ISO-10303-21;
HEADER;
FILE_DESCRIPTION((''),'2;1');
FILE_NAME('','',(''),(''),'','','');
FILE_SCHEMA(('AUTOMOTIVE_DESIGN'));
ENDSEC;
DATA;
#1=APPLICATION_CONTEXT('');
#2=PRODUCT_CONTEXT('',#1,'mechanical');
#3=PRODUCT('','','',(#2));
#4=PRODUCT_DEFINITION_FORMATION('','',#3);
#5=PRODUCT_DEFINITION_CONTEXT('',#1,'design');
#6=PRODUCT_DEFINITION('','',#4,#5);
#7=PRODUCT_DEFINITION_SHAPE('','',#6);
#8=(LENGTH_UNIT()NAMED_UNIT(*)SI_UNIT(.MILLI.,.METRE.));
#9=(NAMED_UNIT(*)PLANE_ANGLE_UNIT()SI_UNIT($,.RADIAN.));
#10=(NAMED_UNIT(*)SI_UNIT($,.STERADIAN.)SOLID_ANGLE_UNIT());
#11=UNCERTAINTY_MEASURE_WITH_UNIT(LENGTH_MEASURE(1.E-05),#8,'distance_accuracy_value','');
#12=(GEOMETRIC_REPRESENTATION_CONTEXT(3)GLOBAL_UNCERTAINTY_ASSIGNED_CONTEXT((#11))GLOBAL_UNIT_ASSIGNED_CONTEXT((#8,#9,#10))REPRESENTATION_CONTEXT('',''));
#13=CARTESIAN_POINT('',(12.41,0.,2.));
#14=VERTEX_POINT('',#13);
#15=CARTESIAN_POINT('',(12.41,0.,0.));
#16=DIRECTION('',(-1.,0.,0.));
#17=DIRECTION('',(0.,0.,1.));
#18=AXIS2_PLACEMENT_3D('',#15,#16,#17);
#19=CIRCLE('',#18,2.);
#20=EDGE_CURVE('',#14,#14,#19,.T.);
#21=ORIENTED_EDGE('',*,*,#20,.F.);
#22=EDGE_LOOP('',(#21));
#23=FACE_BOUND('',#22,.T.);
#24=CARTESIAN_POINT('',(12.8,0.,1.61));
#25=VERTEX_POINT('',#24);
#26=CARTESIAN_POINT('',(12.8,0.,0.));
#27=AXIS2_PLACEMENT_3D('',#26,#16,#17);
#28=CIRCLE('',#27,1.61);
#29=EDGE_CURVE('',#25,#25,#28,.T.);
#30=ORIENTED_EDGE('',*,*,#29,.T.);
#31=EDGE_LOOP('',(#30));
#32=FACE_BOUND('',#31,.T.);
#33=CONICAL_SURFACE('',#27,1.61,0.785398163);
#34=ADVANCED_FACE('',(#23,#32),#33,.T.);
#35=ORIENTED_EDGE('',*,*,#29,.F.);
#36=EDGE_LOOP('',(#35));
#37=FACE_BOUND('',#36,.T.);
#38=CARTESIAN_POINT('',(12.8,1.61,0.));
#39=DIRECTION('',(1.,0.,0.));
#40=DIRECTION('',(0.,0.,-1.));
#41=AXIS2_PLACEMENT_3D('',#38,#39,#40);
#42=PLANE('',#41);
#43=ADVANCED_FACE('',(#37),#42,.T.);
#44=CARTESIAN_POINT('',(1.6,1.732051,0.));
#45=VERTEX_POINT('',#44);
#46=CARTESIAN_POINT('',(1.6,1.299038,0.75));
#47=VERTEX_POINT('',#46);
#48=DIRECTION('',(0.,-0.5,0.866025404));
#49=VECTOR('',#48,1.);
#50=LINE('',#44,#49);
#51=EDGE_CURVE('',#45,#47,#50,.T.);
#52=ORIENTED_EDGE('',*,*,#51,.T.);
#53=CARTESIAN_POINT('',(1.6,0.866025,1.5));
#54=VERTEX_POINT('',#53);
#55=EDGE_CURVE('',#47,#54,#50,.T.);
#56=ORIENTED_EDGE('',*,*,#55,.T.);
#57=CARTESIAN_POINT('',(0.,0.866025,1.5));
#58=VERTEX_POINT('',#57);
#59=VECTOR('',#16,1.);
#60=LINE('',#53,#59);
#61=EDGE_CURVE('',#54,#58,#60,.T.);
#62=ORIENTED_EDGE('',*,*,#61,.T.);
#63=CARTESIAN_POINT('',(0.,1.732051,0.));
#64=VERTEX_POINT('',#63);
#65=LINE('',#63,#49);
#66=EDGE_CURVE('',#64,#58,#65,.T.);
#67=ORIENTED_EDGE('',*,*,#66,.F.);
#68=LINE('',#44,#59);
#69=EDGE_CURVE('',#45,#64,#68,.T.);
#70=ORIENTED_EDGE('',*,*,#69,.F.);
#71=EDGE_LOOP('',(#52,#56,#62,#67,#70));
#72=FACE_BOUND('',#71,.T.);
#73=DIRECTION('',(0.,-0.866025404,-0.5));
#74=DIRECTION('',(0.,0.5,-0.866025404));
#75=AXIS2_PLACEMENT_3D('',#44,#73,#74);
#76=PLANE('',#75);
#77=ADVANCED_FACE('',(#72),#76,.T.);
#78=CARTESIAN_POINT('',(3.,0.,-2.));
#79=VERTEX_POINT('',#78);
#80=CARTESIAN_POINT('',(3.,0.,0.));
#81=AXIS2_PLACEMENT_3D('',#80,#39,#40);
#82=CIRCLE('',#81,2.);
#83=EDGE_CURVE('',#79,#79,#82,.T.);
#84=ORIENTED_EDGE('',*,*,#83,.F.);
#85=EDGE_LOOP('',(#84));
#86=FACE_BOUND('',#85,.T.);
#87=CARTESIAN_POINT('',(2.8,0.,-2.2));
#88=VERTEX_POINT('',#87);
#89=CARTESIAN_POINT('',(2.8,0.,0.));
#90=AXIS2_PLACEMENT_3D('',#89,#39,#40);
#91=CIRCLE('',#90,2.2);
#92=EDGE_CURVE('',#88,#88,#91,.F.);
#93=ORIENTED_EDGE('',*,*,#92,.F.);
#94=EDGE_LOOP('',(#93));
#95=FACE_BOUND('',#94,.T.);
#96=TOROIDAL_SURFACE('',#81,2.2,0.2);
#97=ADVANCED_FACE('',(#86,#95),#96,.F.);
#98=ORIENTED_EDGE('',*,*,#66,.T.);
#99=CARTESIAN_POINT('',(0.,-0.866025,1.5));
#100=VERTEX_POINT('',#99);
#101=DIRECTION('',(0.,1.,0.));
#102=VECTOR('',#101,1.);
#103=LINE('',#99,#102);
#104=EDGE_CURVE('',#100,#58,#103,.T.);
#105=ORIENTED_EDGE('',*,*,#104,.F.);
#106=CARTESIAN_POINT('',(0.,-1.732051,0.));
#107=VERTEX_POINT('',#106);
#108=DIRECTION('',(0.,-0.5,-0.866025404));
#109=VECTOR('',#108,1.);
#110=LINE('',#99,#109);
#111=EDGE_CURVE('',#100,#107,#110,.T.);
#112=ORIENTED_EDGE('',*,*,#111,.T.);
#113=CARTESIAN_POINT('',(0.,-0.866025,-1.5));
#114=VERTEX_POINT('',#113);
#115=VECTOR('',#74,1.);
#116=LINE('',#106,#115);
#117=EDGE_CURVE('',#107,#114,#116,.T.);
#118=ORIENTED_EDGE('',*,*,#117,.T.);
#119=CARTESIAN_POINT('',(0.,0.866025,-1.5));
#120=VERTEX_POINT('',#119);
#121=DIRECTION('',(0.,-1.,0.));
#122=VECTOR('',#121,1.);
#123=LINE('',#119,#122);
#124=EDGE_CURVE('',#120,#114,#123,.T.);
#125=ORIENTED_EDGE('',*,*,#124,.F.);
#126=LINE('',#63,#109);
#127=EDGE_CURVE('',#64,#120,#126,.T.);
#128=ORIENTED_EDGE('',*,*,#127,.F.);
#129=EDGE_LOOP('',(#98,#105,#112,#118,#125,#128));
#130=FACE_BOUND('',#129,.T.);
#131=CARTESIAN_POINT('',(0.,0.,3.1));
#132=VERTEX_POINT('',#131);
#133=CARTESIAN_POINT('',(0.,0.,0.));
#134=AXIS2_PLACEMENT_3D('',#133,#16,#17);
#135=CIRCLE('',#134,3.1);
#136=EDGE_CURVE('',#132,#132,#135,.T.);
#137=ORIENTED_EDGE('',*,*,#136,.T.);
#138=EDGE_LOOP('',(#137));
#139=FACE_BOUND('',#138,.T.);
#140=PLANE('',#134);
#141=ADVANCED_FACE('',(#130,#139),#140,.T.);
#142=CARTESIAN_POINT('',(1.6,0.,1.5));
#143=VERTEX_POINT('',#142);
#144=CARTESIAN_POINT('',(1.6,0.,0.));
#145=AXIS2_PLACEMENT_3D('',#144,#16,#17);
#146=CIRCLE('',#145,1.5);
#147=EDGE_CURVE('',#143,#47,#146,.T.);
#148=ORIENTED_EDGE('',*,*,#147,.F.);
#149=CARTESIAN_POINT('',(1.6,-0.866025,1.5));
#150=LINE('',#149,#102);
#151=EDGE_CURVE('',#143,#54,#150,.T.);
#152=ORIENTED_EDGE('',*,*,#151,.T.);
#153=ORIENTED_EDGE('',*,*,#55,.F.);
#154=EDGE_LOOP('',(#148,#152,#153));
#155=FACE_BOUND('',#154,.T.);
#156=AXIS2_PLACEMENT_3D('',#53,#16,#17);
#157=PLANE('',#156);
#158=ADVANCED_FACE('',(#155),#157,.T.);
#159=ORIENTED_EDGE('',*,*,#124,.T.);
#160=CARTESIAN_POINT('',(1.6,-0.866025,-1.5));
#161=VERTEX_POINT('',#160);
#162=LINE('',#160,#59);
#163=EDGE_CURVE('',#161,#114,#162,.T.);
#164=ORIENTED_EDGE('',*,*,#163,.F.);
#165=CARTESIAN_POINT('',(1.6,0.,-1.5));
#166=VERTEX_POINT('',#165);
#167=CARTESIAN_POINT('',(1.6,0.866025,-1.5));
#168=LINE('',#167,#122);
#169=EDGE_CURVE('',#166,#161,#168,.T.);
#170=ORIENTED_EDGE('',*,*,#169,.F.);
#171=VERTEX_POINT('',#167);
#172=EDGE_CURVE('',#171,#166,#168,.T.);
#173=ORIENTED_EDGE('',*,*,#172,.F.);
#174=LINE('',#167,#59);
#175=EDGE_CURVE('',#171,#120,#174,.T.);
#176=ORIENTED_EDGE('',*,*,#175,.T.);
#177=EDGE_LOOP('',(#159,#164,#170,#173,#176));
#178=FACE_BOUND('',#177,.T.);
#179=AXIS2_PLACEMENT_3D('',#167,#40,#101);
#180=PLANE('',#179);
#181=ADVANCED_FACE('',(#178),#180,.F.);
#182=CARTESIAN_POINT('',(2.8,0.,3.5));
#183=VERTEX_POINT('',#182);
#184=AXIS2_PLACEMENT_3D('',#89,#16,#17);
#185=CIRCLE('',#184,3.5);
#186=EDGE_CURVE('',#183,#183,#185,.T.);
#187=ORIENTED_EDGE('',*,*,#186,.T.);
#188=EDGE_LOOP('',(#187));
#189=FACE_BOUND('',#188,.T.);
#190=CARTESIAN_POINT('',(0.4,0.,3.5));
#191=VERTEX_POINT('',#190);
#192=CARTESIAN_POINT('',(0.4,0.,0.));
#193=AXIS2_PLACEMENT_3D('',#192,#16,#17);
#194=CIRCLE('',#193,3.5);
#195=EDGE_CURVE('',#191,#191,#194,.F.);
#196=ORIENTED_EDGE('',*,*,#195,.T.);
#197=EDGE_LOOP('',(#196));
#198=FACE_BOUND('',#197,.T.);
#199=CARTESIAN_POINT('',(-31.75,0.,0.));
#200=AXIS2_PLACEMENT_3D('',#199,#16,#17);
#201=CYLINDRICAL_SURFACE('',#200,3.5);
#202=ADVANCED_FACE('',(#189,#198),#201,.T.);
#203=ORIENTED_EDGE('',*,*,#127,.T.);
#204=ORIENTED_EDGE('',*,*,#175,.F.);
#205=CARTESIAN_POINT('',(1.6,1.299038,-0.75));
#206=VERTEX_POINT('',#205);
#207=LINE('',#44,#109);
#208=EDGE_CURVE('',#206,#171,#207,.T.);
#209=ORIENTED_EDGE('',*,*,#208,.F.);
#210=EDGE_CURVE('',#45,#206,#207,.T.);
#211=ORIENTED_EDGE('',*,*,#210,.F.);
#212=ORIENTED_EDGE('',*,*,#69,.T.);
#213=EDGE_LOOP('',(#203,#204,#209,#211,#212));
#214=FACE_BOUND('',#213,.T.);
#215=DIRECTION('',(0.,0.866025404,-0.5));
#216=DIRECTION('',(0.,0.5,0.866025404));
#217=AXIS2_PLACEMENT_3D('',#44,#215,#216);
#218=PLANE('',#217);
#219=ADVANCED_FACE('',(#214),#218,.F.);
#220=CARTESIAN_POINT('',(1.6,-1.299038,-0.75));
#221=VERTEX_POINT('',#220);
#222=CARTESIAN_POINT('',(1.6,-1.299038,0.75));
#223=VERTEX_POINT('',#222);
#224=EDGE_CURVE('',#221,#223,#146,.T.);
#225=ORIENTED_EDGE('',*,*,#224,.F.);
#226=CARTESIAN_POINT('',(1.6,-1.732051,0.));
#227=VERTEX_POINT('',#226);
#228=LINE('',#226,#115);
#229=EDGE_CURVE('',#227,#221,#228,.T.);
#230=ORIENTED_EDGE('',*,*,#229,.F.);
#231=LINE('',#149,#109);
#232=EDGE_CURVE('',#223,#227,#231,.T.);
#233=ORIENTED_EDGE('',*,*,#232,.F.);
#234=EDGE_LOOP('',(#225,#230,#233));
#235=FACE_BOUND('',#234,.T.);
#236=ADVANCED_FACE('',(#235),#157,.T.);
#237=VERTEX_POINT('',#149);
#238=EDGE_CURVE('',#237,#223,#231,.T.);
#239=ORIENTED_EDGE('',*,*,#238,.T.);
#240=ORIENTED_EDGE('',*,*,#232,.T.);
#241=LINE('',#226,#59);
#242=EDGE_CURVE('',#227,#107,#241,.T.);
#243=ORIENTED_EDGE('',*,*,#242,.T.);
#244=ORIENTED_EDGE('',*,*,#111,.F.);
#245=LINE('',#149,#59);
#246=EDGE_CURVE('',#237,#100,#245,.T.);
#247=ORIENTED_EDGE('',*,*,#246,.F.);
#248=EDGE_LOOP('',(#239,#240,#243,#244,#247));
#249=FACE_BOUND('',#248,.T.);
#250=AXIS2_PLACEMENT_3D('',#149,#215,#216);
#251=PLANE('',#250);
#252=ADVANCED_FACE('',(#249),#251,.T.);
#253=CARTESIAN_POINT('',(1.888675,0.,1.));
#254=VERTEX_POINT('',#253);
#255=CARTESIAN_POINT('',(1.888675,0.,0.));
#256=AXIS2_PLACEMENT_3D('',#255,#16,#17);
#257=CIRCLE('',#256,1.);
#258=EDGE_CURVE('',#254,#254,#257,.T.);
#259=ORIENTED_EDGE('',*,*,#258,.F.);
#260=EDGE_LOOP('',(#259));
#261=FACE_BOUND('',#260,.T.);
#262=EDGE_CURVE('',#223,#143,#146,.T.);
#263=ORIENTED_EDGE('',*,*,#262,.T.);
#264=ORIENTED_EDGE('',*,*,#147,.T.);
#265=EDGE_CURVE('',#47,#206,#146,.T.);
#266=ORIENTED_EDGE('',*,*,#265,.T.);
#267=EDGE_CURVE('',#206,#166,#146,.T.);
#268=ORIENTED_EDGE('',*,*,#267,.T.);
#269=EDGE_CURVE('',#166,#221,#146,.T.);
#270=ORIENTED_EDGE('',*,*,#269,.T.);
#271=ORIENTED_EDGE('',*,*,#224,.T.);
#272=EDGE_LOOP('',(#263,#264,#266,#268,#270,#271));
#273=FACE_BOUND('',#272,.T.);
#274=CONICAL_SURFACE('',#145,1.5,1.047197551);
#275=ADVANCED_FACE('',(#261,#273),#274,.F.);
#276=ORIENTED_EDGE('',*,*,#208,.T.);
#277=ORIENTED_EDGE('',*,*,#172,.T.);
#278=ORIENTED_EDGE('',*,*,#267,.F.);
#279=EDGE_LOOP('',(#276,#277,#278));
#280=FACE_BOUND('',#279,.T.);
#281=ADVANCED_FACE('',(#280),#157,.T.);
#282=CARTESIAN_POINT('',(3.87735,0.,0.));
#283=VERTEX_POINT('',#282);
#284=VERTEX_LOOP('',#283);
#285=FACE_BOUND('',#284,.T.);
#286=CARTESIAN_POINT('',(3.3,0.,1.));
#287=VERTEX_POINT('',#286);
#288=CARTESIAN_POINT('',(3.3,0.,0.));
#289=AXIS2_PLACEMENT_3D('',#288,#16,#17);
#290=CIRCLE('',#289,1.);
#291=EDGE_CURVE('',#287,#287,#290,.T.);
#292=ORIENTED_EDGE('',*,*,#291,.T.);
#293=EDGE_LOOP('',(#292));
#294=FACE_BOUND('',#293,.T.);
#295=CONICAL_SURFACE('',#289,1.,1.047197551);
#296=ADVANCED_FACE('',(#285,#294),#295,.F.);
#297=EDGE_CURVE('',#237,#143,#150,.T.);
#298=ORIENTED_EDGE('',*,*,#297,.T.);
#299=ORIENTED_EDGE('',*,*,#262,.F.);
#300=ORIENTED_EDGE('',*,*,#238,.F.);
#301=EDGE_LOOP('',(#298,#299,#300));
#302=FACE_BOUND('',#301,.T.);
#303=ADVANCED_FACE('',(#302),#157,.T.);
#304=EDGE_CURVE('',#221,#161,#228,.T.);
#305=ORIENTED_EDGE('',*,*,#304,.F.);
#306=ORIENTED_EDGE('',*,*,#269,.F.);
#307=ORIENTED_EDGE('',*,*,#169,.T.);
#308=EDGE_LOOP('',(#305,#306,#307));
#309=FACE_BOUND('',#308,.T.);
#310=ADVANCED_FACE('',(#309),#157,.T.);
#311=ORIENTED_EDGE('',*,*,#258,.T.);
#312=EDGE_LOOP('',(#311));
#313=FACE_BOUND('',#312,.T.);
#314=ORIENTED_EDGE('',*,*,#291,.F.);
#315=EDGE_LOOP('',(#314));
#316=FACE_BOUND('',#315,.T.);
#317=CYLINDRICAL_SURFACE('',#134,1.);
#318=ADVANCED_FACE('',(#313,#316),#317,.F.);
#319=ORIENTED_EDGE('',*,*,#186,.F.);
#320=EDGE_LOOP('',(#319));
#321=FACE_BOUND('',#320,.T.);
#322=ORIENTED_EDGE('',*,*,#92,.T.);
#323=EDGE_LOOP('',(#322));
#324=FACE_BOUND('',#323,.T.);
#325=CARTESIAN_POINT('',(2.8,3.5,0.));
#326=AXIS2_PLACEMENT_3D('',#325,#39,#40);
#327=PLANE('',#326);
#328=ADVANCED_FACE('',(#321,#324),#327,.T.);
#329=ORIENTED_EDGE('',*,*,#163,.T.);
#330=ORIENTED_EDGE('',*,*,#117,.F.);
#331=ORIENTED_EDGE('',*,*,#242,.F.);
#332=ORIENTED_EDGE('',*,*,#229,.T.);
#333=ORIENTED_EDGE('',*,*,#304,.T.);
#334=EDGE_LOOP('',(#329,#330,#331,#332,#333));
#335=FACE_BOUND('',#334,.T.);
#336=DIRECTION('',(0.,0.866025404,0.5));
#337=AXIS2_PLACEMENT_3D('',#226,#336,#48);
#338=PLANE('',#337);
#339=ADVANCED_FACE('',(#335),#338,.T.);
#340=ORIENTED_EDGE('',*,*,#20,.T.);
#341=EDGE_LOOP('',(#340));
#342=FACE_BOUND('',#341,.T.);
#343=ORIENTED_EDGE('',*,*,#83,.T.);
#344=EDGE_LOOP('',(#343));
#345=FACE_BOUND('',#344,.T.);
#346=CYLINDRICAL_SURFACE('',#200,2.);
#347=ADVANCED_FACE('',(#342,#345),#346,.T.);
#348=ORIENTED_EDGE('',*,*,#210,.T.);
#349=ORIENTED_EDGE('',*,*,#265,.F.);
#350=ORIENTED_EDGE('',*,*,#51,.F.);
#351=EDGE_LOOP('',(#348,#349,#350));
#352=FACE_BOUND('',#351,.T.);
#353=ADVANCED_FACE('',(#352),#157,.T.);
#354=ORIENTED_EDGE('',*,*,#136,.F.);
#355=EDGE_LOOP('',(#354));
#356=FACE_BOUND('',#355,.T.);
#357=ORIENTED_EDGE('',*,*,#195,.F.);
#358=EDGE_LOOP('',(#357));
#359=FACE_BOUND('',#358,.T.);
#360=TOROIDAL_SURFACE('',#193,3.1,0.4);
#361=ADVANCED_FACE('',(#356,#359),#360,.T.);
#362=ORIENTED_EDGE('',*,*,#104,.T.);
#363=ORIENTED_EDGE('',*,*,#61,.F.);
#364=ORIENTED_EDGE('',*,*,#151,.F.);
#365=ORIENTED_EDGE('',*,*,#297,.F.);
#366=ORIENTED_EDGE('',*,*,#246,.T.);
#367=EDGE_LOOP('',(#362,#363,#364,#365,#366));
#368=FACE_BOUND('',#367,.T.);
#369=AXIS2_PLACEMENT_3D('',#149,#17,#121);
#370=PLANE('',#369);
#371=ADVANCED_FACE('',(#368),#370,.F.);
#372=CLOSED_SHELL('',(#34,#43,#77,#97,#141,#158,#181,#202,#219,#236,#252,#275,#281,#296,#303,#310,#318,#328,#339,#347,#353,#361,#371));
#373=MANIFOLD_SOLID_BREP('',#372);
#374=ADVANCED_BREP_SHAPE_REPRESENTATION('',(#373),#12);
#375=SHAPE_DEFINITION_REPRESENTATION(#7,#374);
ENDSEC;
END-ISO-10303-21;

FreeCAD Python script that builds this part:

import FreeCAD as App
import Part
import Sketcher
Q = App.Units.Quantity


def edges_at(feature, points):
    """Names of the edges that pass closest to the given points."""
    edges = feature.Shape.Edges
    near = lambda p: min(range(len(edges)), key=lambda i: edges[i].distToShape(Part.Vertex(*p))[0])
    return sorted({f"Edge{near(p) + 1}" for p in points})


def add_polygon(sketch, points):
    """Adds a closed chain of lines whose ends are joined by coincident constraints."""
    first, n = sketch.GeometryCount, len(points)
    for a, b in zip(points, points[1:] + points[:1]):
        sketch.addGeometry(Part.LineSegment(App.Vector(*a, 0), App.Vector(*b, 0)), False)
    for i in range(n):
        sketch.addConstraint(Sketcher.Constraint("Coincident", first + i, 2, first + (i + 1) % n, 1))

doc = App.newDocument("Part")
body = doc.addObject("PartDesign::Body", "Body")

# Sketch on XY plane
sketch1 = body.newObject("Sketcher::SketchObject", "Sketch")
sketch1.AttachmentSupport = (doc.getObject("XY_Plane"), [""])
sketch1.MapMode = "FlatFace"
add_polygon(sketch1, [(0, 3.5), (0, 0), (12.8, 0), (12.8, 1.61), (12.41, 2), (2.8, 2), (2.8, 3.5)])  # lines 0-6
sketch1.addConstraint([
    Sketcher.Constraint("Vertical", 0),
    Sketcher.Constraint("Horizontal", 1),
    Sketcher.Constraint("Vertical", 2),
    Sketcher.Constraint("Horizontal", 4),
    Sketcher.Constraint("Vertical", 5),
    Sketcher.Constraint("Horizontal", 6),
    Sketcher.Constraint("Coincident", 0, 2, -1, 1),
    Sketcher.Constraint("Angle", 3, Q("135 deg")),
    Sketcher.Constraint("DistanceX", 1, 1, 1, 2, 12.8),
    Sketcher.Constraint("DistanceX", 6, 2, 6, 1, 2.8),
    Sketcher.Constraint("DistanceY", 0, 2, 0, 1, 3.5),
    Sketcher.Constraint("DistanceY", 5, 1, 5, 2, 1.5),
    Sketcher.Constraint("DistanceX", 4, 2, 4, 1, 9.61),
])
revolution = body.newObject("PartDesign::Revolution", "Revolution")
revolution.Profile = sketch1
revolution.ReferenceAxis = (sketch1, ["H_Axis"])
revolution.Angle = 360
doc.recompute()

fillet = body.newObject("PartDesign::Fillet", "Fillet")
fillet.Base = (revolution, edges_at(revolution, [(2.8, -2, 0)]))
fillet.Radius = 0.2
doc.recompute()

fillet2 = body.newObject("PartDesign::Fillet", "Fillet001")
fillet2.Base = (fillet, edges_at(fillet, [(0, -3.5, 0)]))
fillet2.Radius = 0.4

# Sketch on YZ plane
sketch2 = body.newObject("Sketcher::SketchObject", "Sketch001")
sketch2.AttachmentSupport = (doc.getObject("YZ_Plane"), [""])
sketch2.MapMode = "FlatFace"
add_polygon(sketch2, [(1.732051, 0), (0.866025, -1.5), (-0.866025, -1.5), (-1.732051, 0), (-0.866025, 1.5), (0.866025, 1.5)])  # lines 0-5
sketch2.addConstraint([
    Sketcher.Constraint("Horizontal", 1),
    Sketcher.Constraint("Horizontal", 4),
    Sketcher.Constraint("Symmetric", 0, 2, 3, 2, -1, 1),
    Sketcher.Constraint("Symmetric", 2, 2, 5, 2, -1, 1),
    Sketcher.Constraint("PointOnObject", 2, 2, -1),
    Sketcher.Constraint("Parallel", 2, 5),
    Sketcher.Constraint("Vertical", 1, 2, 3, 2),
    Sketcher.Constraint("Angle", 0, Q("-120 deg")),
    Sketcher.Constraint("DistanceY", 1, 2, 3, 2, 3.0),
    Sketcher.Constraint("DistanceX", 1, 2, 1, 1, 1.732051),
])
pocket1 = body.newObject("PartDesign::Pocket", "Pocket")
pocket1.Profile = sketch2
pocket1.Length = 1.6
pocket1.Reversed = True

# Sketch on XY plane
sketch3 = body.newObject("Sketcher::SketchObject", "Sketch002")
sketch3.AttachmentSupport = (doc.getObject("XY_Plane"), [""])
sketch3.MapMode = "FlatFace"
add_polygon(sketch3, [(1.6, 1.5), (0, 1.5), (0, 0), (3.87735, 0), (3.3, 1), (1.888675, 1)])  # lines 0-5
sketch3.addConstraint([
    Sketcher.Constraint("Horizontal", 0),
    Sketcher.Constraint("Vertical", 1),
    Sketcher.Constraint("Horizontal", 2),
    Sketcher.Constraint("Horizontal", 4),
    Sketcher.Constraint("Coincident", 1, 2, -1, 1),
    Sketcher.Constraint("Parallel", 3, 5),
    Sketcher.Constraint("Angle", 3, Q("120 deg")),
    Sketcher.Constraint("DistanceX", 0, 2, 0, 1, 1.6),
    Sketcher.Constraint("DistanceY", 1, 2, 1, 1, 1.5),
    Sketcher.Constraint("DistanceY", -1, 1, 3, 2, 1.0),
    Sketcher.Constraint("DistanceX", -1, 1, 3, 2, 3.3),
])
groove = body.newObject("PartDesign::Groove", "Groove")
groove.Profile = sketch3
groove.ReferenceAxis = (sketch3, ["H_Axis"])
groove.Angle = 360

doc.recompute()
